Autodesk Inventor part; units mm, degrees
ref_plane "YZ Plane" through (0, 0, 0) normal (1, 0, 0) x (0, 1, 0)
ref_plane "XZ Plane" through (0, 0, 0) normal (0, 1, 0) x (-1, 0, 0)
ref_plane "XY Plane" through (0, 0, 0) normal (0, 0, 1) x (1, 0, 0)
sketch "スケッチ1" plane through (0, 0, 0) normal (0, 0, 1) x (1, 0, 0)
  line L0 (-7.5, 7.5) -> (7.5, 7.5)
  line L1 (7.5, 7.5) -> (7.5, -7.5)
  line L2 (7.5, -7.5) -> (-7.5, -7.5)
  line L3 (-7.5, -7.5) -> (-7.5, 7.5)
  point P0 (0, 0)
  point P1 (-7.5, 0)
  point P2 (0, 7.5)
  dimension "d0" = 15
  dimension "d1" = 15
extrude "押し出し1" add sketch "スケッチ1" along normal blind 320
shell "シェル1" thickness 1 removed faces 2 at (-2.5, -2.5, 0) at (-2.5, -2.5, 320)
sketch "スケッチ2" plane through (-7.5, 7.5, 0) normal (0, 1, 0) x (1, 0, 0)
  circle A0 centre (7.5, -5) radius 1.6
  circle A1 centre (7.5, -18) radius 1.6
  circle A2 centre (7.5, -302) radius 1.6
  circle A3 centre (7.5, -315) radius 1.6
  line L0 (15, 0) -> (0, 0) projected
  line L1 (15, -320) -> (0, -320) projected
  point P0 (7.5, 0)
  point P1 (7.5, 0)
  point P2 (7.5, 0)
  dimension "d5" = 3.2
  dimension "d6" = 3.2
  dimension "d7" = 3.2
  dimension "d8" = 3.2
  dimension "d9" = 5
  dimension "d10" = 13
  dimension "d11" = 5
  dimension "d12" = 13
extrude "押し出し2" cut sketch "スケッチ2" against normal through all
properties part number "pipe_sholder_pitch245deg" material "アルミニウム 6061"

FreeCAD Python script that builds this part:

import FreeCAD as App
import Part
import Sketcher


def faces_at(feature, points):
    """Names of the faces that lie closest to the given points."""
    faces = feature.Shape.Faces
    near = lambda p: min(range(len(faces)), key=lambda i: faces[i].distToShape(Part.Vertex(*p))[0])
    return sorted({f"Face{near(p) + 1}" for p in points})

doc = App.newDocument("Part")
params = doc.addObject("Spreadsheet::Sheet", "Params")
for row, (alias, value) in enumerate([
    ("sketch1_width", "15 mm"),
    ("pad1_length", "320 mm"),
    ("thickness_wall", "1 mm"),
    ("sketch2_diameter", "3.2 mm"),
], start=1):
    params.set(f"A{row}", alias)
    params.set(f"B{row}", "=" + value)
    params.setAlias(f"B{row}", alias)

body = doc.addObject("PartDesign::Body", "Body")

sketch1 = doc.addObject("Sketcher::SketchObject", "Sketch")
body.addObject(sketch1)
sketch1.AttachmentSupport = (doc.XY_Plane, [""])
sketch1.MapMode = "FlatFace"
sketch1.addGeometry(Part.LineSegment(App.Vector(8, 8, 0), App.Vector(-8, 8, 0)), False)
sketch1.addGeometry(Part.LineSegment(App.Vector(-8, 8, 0), App.Vector(-8, -8, 0)), False)
sketch1.addGeometry(Part.LineSegment(App.Vector(-8, -8, 0), App.Vector(8, -8, 0)), False)
sketch1.addGeometry(Part.LineSegment(App.Vector(8, -8, 0), App.Vector(8, 8, 0)), False)
sketch1.addConstraint(Sketcher.Constraint("Coincident", 0, 2, 1, 1))
sketch1.addConstraint(Sketcher.Constraint("Coincident", 1, 2, 2, 1))
sketch1.addConstraint(Sketcher.Constraint("Coincident", 2, 2, 3, 1))
sketch1.addConstraint(Sketcher.Constraint("Coincident", 3, 2, 0, 1))
sketch1.addConstraint(Sketcher.Constraint("Horizontal", 0))
sketch1.addConstraint(Sketcher.Constraint("Vertical", 1))
sketch1.addConstraint(Sketcher.Constraint("Horizontal", 2))
sketch1.addConstraint(Sketcher.Constraint("Vertical", 3))
sketch1.addConstraint(Sketcher.Constraint("Symmetric", 0, 2, 2, 2, -1, 1))
sketch1.addConstraint(Sketcher.Constraint("Equal", 2, 1))
sketch1.addConstraint(Sketcher.Constraint("DistanceX", 0, 2, 0, 1, 15.0))
sketch1.setExpression("Constraints[10]", "Params.sketch1_width")
pad1 = doc.addObject("PartDesign::Pad", "Pad")
body.addObject(pad1)
pad1.Profile = sketch1
pad1.setExpression("Length", "Params.pad1_length")
doc.recompute()

thickness = doc.addObject("PartDesign::Thickness", "Thickness")
body.addObject(thickness)
thickness.Base = (pad1, faces_at(pad1, [(-2.5, -2.5, 0), (-2.5, -2.5, 320)]))
thickness.setExpression("Value", "Params.thickness_wall")
thickness.Reversed = True
thickness.Join = "Intersection"

sketch2 = doc.addObject("Sketcher::SketchObject", "Sketch001")
body.addObject(sketch2)
sketch2.AttachmentSupport = (doc.XZ_Plane, [""])
sketch2.MapMode = "FlatFace"
sketch2.AttachmentOffset = App.Placement(App.Vector(0, 0, -7.5), App.Rotation())
sketch2.addGeometry(Part.Circle(App.Vector(0, 5, 0), App.Vector(0, 0, 1), 1.6), False)
sketch2.addGeometry(Part.Circle(App.Vector(0, 18, 0), App.Vector(0, 0, 1), 1.6), False)
sketch2.addGeometry(Part.Circle(App.Vector(0, 302, 0), App.Vector(0, 0, 1), 1.6), False)
sketch2.addGeometry(Part.Circle(App.Vector(0, 315, 0), App.Vector(0, 0, 1), 1.6), False)
sketch2.addConstraint(Sketcher.Constraint("Equal", 0, 1))
sketch2.addConstraint(Sketcher.Constraint("Equal", 1, 2))
sketch2.addConstraint(Sketcher.Constraint("Equal", 2, 3))
sketch2.addConstraint(Sketcher.Constraint("PointOnObject", 0, 3, -2))
sketch2.addConstraint(Sketcher.Constraint("PointOnObject", 1, 3, -2))
sketch2.addConstraint(Sketcher.Constraint("PointOnObject", 2, 3, -2))
sketch2.addConstraint(Sketcher.Constraint("PointOnObject", 3, 3, -2))
sketch2.addConstraint(Sketcher.Constraint("Diameter", 0, 3.2))
sketch2.addConstraint(Sketcher.Constraint("DistanceY", -1, 1, 0, 3, 5.0))
sketch2.addConstraint(Sketcher.Constraint("DistanceY", 0, 3, 1, 3, 13.0))
sketch2.addConstraint(Sketcher.Constraint("DistanceY", 2, 3, 3, 3, 13.0))
sketch2.addConstraint(Sketcher.Constraint("DistanceY", -1, 1, 2, 3, 302.0))
sketch2.setExpression("Constraints[7]", "Params.sketch2_diameter")
pocket1 = doc.addObject("PartDesign::Pocket", "Pocket")
body.addObject(pocket1)
pocket1.Profile = sketch2
pocket1.Type = "ThroughAll"
pocket1.Reversed = True

doc.recompute()
